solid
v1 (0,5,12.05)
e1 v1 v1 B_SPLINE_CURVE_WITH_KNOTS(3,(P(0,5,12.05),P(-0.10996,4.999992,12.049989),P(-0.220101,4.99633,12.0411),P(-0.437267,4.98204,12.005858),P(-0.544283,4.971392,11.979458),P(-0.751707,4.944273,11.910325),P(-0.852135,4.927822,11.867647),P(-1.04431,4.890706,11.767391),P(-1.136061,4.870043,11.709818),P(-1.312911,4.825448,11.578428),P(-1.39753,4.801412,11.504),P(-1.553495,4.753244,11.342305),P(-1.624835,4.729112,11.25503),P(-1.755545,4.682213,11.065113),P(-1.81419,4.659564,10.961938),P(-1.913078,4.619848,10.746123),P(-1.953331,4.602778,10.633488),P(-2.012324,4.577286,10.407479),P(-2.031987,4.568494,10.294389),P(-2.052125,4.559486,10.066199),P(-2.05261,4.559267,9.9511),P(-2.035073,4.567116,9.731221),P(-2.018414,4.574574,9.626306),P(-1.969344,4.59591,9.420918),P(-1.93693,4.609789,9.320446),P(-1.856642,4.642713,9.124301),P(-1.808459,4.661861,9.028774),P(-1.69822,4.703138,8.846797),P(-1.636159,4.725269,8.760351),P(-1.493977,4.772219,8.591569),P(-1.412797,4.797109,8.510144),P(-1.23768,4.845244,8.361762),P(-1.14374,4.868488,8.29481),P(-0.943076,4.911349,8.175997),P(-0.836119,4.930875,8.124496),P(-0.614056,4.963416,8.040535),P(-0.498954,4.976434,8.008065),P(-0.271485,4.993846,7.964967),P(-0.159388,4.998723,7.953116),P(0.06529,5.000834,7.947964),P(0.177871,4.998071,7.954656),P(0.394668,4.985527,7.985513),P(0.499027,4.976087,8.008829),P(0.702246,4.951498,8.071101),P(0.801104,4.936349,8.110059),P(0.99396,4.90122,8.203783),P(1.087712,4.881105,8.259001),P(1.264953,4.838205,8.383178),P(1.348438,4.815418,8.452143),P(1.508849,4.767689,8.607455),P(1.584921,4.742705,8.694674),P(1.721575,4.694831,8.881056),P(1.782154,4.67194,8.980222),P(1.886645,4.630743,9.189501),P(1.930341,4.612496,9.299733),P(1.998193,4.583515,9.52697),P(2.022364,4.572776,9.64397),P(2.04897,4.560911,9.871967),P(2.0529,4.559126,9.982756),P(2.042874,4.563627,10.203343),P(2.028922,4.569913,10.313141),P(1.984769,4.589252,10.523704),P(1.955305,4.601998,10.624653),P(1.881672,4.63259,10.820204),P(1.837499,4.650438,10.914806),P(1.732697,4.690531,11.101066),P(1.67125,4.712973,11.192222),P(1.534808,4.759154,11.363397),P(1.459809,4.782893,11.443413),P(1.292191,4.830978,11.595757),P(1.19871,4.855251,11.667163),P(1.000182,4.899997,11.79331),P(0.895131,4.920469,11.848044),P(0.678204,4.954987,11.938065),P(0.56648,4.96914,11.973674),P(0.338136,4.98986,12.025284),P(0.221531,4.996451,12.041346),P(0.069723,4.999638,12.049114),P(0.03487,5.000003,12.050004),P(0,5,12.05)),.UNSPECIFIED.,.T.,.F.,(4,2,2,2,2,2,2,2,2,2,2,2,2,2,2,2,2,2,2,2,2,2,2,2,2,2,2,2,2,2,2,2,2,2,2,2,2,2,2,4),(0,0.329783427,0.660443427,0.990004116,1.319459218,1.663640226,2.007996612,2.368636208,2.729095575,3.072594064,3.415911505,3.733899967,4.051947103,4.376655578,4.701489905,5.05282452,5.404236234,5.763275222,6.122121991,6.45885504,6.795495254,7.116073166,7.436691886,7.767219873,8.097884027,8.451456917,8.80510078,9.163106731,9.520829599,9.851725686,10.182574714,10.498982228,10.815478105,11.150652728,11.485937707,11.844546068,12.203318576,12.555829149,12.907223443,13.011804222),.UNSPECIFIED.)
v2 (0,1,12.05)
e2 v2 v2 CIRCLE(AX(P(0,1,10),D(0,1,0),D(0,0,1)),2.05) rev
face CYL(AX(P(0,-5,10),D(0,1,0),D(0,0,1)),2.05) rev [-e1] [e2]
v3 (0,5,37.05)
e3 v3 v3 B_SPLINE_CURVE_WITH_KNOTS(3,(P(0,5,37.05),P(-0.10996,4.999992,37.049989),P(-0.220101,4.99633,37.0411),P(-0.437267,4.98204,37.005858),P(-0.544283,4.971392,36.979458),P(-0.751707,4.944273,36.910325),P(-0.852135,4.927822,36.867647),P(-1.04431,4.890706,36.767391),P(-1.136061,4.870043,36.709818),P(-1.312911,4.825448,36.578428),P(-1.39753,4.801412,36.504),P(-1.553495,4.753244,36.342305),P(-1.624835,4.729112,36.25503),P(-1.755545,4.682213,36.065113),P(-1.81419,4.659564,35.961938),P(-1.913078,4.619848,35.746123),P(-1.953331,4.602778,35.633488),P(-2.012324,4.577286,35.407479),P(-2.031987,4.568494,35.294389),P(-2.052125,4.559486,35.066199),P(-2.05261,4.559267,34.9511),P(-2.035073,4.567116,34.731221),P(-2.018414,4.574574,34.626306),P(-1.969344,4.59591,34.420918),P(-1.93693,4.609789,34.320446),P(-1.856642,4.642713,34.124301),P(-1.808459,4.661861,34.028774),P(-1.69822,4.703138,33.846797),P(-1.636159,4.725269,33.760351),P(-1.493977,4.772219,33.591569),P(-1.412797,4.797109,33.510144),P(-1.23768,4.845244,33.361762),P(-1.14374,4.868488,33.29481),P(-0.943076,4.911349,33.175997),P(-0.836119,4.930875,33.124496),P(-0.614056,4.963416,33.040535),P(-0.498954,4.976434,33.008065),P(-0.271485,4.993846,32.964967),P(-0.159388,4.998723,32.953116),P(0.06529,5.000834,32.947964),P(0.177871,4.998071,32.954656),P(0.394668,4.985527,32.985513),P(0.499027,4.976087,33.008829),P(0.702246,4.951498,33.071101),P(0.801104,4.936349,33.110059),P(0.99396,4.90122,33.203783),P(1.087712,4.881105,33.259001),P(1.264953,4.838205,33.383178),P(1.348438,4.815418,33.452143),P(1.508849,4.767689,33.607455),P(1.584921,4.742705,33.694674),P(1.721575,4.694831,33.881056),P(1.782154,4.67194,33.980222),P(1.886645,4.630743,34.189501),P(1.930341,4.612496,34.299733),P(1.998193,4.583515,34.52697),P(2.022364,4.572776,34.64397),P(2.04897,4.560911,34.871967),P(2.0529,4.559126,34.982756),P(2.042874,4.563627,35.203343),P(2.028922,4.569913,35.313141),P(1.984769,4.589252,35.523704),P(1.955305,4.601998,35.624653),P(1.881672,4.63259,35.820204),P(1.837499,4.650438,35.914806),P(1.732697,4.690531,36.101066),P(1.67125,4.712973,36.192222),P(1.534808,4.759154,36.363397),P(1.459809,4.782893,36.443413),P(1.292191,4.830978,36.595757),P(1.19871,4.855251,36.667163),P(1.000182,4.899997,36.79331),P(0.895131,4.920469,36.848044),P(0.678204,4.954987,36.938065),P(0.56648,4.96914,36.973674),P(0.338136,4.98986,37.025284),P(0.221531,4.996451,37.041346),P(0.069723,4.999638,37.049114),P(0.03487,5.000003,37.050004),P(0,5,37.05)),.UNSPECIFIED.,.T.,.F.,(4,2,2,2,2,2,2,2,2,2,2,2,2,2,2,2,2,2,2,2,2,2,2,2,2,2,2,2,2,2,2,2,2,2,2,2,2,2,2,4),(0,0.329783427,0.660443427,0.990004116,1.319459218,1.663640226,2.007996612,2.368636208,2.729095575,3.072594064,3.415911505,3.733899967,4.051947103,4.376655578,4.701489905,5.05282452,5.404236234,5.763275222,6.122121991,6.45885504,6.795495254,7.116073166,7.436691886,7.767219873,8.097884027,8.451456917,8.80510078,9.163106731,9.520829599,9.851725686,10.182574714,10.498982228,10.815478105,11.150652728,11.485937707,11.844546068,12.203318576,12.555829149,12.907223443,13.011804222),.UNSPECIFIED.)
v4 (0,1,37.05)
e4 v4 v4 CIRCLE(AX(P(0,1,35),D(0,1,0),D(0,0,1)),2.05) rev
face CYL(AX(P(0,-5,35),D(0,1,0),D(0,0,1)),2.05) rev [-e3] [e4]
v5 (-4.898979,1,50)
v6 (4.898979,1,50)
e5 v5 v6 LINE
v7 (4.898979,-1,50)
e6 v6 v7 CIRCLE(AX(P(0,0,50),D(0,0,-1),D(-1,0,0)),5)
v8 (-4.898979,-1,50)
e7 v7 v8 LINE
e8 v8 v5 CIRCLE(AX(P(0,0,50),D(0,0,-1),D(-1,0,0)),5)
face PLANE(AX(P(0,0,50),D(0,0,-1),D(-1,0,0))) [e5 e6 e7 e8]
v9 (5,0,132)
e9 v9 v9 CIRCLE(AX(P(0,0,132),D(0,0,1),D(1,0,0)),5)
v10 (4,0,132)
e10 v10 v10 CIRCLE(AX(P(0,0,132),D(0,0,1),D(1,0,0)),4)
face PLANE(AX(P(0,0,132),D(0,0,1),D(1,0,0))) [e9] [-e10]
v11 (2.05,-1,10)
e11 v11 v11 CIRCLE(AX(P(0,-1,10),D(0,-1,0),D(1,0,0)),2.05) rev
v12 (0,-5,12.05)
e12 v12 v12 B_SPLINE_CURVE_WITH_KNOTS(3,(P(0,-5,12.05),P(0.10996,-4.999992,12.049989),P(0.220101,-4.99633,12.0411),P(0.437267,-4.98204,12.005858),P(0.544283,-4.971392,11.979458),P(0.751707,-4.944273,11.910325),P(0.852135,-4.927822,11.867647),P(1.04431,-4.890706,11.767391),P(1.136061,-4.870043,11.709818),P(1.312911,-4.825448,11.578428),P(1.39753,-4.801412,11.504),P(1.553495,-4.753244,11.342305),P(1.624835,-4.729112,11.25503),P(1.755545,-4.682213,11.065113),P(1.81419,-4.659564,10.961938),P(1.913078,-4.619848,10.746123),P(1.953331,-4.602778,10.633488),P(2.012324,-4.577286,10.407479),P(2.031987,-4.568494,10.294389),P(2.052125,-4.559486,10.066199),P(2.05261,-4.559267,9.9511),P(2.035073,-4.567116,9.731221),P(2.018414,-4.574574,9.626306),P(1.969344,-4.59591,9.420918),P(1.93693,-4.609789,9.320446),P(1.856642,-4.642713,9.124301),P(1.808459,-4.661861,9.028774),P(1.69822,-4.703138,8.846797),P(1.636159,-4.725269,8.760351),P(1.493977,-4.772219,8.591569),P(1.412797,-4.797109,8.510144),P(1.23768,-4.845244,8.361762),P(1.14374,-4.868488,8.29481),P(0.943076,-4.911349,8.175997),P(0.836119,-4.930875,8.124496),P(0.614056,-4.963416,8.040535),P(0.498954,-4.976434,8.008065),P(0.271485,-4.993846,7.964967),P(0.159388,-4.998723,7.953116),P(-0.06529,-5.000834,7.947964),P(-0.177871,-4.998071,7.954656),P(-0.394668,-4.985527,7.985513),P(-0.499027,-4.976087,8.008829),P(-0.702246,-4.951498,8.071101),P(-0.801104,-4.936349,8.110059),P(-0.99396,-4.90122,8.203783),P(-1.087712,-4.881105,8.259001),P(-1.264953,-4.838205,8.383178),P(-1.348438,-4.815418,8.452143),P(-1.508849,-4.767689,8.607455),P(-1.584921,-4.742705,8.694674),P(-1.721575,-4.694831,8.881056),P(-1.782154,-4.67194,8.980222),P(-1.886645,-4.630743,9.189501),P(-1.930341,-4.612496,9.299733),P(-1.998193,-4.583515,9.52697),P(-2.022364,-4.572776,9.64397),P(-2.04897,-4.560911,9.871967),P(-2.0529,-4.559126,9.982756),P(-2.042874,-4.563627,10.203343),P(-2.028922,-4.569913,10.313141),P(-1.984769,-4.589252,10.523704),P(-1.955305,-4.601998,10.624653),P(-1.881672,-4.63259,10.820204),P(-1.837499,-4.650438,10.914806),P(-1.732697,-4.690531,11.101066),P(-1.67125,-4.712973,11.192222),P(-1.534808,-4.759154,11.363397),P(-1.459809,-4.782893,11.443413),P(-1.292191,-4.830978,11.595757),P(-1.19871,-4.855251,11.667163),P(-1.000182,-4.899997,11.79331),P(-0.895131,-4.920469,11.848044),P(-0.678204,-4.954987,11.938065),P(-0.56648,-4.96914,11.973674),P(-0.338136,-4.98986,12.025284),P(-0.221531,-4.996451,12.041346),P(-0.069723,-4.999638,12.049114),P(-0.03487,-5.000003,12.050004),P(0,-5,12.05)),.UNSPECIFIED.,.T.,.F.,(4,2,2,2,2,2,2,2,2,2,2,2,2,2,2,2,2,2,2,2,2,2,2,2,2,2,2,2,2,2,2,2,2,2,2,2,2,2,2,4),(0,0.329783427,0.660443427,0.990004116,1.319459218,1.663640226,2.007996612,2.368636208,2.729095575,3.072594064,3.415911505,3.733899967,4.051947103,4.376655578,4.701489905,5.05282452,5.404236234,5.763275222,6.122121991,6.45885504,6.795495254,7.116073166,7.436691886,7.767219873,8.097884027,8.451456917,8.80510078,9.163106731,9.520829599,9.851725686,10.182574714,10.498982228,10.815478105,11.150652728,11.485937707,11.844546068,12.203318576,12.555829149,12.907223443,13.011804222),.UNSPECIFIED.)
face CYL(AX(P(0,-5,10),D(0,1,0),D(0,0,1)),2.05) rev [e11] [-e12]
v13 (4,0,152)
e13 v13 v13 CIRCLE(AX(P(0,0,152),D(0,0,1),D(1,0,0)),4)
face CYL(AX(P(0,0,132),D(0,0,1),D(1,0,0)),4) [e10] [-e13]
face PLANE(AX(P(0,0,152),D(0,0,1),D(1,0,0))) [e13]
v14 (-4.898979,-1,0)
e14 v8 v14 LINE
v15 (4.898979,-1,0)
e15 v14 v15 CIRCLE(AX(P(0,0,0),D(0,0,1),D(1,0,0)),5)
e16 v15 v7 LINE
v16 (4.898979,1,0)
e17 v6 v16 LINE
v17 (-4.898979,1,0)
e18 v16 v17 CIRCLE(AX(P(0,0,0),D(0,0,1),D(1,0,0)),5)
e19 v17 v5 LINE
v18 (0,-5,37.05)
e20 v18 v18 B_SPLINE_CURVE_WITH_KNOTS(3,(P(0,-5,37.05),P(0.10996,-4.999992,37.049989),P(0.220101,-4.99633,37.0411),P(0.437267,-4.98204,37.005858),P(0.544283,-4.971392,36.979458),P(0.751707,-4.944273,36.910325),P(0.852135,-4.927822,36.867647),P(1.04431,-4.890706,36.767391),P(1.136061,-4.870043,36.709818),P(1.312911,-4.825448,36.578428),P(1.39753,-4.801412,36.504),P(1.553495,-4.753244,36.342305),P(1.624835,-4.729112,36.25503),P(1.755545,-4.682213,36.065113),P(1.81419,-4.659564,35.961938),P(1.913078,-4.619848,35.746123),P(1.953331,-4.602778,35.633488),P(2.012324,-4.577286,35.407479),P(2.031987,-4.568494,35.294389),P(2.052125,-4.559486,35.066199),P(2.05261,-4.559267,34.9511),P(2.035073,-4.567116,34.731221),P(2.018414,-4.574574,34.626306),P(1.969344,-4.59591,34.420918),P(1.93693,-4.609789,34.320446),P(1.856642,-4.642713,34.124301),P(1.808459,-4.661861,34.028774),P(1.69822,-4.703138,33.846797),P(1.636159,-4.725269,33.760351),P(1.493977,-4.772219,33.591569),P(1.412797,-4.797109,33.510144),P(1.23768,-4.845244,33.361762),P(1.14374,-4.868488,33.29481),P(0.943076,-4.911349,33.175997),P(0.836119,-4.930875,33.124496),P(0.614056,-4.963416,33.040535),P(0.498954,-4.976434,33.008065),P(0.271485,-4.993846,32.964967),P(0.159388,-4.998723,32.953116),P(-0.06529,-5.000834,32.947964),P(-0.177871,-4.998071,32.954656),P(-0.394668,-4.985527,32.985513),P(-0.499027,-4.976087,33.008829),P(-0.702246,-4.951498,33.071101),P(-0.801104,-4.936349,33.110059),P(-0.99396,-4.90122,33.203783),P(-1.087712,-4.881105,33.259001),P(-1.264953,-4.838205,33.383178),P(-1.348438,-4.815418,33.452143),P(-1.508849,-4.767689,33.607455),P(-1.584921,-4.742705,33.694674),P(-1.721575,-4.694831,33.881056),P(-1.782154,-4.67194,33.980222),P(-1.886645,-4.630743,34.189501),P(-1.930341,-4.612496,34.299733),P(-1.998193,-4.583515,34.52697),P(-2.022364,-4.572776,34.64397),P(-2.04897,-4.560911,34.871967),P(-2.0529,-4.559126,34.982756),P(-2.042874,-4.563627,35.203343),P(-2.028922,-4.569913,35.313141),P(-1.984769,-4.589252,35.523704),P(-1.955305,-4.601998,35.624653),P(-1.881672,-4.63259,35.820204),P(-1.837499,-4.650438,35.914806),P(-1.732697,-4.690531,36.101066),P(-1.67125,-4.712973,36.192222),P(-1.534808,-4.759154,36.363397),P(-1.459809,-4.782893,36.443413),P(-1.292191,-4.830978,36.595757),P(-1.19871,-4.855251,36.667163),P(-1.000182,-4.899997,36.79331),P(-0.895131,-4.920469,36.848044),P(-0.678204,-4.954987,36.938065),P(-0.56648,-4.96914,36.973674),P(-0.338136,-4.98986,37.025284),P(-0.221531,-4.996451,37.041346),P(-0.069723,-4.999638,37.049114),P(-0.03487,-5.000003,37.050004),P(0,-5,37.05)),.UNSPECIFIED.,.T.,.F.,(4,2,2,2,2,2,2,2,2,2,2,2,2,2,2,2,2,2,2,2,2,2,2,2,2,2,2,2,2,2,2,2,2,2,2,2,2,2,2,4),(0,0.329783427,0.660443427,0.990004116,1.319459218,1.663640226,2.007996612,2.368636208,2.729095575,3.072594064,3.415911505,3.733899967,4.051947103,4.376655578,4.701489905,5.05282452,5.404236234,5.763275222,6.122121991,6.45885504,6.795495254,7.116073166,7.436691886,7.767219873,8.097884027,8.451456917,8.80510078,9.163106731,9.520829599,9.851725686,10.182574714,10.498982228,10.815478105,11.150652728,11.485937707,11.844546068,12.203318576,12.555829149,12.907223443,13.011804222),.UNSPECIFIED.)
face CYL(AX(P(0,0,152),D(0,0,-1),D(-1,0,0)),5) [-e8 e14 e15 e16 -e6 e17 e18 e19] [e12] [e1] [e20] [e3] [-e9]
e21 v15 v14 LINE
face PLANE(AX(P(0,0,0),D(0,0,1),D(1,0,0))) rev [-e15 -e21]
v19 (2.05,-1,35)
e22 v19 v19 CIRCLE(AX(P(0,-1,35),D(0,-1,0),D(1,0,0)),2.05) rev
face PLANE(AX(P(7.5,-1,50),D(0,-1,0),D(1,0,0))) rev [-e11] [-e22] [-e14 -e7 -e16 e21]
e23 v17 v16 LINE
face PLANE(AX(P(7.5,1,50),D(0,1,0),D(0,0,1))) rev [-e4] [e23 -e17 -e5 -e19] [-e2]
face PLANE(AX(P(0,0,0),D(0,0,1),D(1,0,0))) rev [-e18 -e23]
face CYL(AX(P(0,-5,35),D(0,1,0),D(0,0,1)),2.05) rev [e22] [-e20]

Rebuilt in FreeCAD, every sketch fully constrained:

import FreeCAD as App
import Part
import Sketcher

V = App.Vector
Q = App.Units.Quantity

doc = App.newDocument("Part")
body = doc.addObject("PartDesign::Body", "Body")

# Sketch on XY plane
sketch1 = doc.addObject("Sketcher::SketchObject", "Sketch")
body.addObject(sketch1)
sketch1.AttachmentSupport = (doc.XY_Plane, [""])
sketch1.MapMode = "FlatFace"
sketch1.addGeometry(Part.Circle(V(0, 0, 0), V(0, 0, 1), 5), False)
sketch1.addConstraint([
    Sketcher.Constraint("Coincident", 0, 3, -1, 1),
    Sketcher.Constraint("Diameter", 0, Q("10 mm")),
])
pad1 = doc.addObject("PartDesign::Pad", "Pad")
body.addObject(pad1)
pad1.Profile = sketch1
pad1.Length = 152

# Sketch on XZ plane
sketch2 = doc.addObject("Sketcher::SketchObject", "Sketch001")
body.addObject(sketch2)
sketch2.AttachmentSupport = (doc.XZ_Plane, [""])
sketch2.MapMode = "FlatFace"
sketch2.addGeometry([
    Part.Circle(V(0, 10, 0), V(0, 0, 1), 2),
    Part.Circle(V(0, 35, 0), V(0, 0, 1), 2),
], False)
sketch2.addConstraint([
    Sketcher.Constraint("Equal", 0, 1),
    Sketcher.Constraint("PointOnObject", 0, 3, -2),
    Sketcher.Constraint("PointOnObject", 1, 3, -2),
    Sketcher.Constraint("Diameter", 0, Q("4.1 mm")),
    Sketcher.Constraint("DistanceY", -1, 1, 0, 3, Q("10 mm")),
    Sketcher.Constraint("DistanceY", -1, 1, 1, 3, Q("35 mm")),
])
pocket1 = doc.addObject("PartDesign::Pocket", "Pocket")
body.addObject(pocket1)
pocket1.Profile = sketch2
pocket1.Type = "ThroughAll"
pocket1.Midplane = True

# Sketch on XY plane
sketch3 = doc.addObject("Sketcher::SketchObject", "Sketch002")
body.addObject(sketch3)
sketch3.AttachmentSupport = (doc.XY_Plane, [""])
sketch3.MapMode = "FlatFace"
sketch3.addGeometry([
    Part.LineSegment(V(7.5, 1, 0), V(7.5, -1, 0)),
    Part.LineSegment(V(7.5, -1, 0), V(-7.5, -1, 0)),
    Part.LineSegment(V(-7.5, -1, 0), V(-7.5, 1, 0)),
    Part.LineSegment(V(-7.5, 1, 0), V(7.5, 1, 0)),
], False)
sketch3.addConstraint([
    Sketcher.Constraint("Coincident", 0, 2, 1, 1),
    Sketcher.Constraint("Coincident", 1, 2, 2, 1),
    Sketcher.Constraint("Coincident", 2, 2, 3, 1),
    Sketcher.Constraint("Coincident", 3, 2, 0, 1),
    Sketcher.Constraint("Vertical", 0),
    Sketcher.Constraint("Horizontal", 1),
    Sketcher.Constraint("Vertical", 2),
    Sketcher.Constraint("Horizontal", 3),
    Sketcher.Constraint("Symmetric", 0, 2, 2, 2, -1, 1),
    Sketcher.Constraint("DistanceX", 1, 2, 1, 1, Q("15 mm")),
    Sketcher.Constraint("DistanceY", 0, 2, 0, 1, Q("2 mm")),
])
pocket2 = doc.addObject("PartDesign::Pocket", "Pocket001")
body.addObject(pocket2)
pocket2.Profile = sketch3
pocket2.Length = 50
pocket2.Reversed = True

# Sketch on XY plane
sketch4 = doc.addObject("Sketcher::SketchObject", "Sketch003")
body.addObject(sketch4)
sketch4.AttachmentSupport = (doc.XY_Plane, [""])
sketch4.MapMode = "FlatFace"
sketch4.AttachmentOffset = App.Placement(V(0, 0, 152), App.Rotation())
sketch4.addGeometry([
    Part.LineSegment(V(-21.3, 21.3, 0), V(-21.3, -21.3, 0)),  # 0
    Part.LineSegment(V(-21.3, -21.3, 0), V(21.3, -21.3, 0)),  # 1
    Part.LineSegment(V(21.3, -21.3, 0), V(21.3, 21.3, 0)),  # 2
    Part.LineSegment(V(21.3, 21.3, 0), V(-21.3, 21.3, 0)),  # 3
    Part.Circle(V(0, 0, 0), V(0, 0, 1), 4),  # 4
], False)
sketch4.addConstraint([
    Sketcher.Constraint("Coincident", 0, 2, 1, 1),
    Sketcher.Constraint("Coincident", 1, 2, 2, 1),
    Sketcher.Constraint("Coincident", 2, 2, 3, 1),
    Sketcher.Constraint("Coincident", 3, 2, 0, 1),
    Sketcher.Constraint("Vertical", 0),
    Sketcher.Constraint("Horizontal", 1),
    Sketcher.Constraint("Vertical", 2),
    Sketcher.Constraint("Horizontal", 3),
    Sketcher.Constraint("Coincident", 4, 3, -1, 1),
    Sketcher.Constraint("Symmetric", 0, 2, 2, 2, -1, 1),
    Sketcher.Constraint("Equal", 3, 0),
    Sketcher.Constraint("Diameter", 4, Q("8 mm")),
    Sketcher.Constraint("DistanceX", 1, 1, 1, 2, Q("42.532 mm")),
])
pocket3 = doc.addObject("PartDesign::Pocket", "Pocket002")
body.addObject(pocket3)
pocket3.Profile = sketch4
pocket3.Length = 20

doc.recompute()
